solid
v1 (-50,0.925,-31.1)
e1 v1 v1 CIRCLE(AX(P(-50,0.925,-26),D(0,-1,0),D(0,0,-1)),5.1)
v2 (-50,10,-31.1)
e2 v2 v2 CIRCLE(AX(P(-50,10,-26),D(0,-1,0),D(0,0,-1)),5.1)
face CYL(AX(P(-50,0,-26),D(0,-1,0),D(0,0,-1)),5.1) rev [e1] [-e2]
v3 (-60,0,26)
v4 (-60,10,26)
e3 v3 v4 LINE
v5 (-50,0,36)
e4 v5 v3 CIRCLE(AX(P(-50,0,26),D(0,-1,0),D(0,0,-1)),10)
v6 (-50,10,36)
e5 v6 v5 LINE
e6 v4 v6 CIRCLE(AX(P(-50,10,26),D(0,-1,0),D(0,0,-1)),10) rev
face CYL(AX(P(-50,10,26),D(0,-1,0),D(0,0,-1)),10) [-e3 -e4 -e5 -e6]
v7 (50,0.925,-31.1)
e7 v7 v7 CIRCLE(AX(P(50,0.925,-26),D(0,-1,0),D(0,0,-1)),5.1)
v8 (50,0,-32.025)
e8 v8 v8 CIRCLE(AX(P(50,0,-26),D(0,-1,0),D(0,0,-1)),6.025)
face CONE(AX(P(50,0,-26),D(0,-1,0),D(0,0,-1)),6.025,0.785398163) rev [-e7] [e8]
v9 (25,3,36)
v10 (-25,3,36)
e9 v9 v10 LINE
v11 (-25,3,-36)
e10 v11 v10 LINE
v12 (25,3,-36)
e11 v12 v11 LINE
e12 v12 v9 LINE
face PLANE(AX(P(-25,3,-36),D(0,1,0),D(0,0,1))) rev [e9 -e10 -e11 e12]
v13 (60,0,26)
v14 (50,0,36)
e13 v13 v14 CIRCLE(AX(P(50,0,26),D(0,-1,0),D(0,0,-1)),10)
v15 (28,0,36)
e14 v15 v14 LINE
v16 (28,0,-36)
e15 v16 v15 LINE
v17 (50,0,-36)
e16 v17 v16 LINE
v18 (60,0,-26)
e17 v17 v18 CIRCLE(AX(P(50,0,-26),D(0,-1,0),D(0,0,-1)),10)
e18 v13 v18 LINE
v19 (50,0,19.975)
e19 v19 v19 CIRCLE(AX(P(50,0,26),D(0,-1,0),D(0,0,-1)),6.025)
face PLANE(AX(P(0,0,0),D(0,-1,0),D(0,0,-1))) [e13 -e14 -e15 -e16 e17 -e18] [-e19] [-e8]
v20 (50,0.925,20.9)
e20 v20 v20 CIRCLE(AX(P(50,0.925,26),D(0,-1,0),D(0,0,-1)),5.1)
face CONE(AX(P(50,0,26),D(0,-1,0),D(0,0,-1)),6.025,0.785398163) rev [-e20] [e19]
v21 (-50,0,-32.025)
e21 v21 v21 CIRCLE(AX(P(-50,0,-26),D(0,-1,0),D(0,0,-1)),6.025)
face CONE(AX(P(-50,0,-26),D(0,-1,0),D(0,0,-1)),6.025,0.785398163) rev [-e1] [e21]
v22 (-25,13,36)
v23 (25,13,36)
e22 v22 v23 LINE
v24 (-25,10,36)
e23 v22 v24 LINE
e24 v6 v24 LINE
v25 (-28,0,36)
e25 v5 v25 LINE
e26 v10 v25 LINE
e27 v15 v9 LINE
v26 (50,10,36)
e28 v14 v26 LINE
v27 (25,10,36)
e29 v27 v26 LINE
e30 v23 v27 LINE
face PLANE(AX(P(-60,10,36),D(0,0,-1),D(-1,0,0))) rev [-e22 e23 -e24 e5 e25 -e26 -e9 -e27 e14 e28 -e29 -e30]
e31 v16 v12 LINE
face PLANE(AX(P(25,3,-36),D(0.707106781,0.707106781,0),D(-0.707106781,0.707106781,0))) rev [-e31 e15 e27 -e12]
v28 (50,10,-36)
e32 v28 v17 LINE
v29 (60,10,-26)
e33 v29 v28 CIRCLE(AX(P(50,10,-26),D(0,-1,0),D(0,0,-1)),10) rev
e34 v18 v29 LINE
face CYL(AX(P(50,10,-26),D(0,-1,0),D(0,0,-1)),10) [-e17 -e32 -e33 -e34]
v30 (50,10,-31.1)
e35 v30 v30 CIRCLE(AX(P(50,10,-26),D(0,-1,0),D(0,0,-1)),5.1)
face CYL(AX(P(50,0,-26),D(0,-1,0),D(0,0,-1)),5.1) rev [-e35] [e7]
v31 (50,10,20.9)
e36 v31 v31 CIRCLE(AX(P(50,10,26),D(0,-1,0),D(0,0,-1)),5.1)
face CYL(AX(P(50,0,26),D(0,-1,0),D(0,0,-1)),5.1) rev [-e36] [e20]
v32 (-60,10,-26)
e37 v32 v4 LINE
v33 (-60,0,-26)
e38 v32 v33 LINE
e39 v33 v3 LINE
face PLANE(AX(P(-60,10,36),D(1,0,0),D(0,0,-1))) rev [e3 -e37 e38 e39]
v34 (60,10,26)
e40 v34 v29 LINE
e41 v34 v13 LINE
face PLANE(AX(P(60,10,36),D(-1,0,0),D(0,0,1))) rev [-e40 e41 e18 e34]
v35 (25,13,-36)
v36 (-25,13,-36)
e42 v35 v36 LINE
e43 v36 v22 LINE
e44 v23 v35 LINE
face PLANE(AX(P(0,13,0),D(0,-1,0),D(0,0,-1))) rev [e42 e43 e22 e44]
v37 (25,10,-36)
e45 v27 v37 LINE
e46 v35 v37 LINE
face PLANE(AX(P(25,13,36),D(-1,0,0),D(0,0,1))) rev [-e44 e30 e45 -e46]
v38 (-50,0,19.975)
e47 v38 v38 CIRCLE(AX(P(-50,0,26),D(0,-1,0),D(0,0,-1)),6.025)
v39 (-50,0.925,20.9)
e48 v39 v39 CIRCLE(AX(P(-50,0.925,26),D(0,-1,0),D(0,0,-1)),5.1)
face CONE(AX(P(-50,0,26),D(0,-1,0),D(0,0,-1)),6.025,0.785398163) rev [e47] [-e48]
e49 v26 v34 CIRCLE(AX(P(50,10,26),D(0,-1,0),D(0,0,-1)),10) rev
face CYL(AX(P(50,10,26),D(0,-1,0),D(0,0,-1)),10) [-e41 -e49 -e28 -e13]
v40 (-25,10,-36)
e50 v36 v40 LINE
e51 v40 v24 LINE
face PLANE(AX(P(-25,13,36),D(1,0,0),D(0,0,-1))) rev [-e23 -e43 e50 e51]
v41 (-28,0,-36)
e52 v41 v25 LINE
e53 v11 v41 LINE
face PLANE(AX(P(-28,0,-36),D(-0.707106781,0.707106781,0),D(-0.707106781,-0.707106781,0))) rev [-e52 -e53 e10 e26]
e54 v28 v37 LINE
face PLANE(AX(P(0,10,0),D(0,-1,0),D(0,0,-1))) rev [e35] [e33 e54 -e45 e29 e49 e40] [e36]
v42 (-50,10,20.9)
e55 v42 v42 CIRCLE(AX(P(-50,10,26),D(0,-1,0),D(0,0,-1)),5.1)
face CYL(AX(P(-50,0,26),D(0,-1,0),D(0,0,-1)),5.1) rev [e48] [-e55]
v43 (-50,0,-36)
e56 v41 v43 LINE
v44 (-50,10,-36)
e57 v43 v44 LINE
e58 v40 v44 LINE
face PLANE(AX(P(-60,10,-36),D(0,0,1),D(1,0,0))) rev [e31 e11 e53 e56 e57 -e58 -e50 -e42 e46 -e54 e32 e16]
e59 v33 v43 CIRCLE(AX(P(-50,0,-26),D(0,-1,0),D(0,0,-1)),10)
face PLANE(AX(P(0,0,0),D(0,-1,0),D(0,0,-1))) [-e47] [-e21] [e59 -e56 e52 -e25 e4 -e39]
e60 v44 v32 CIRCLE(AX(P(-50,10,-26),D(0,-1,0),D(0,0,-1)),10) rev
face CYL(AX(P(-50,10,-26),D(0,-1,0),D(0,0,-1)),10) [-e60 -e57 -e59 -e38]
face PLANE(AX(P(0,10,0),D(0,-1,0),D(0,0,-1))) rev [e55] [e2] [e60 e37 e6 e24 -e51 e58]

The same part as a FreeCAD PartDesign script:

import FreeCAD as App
import Part
import Sketcher


def edges_at(feature, points):
    """Names of the edges that pass closest to the given points."""
    edges = feature.Shape.Edges
    near = lambda p: min(range(len(edges)), key=lambda i: edges[i].distToShape(Part.Vertex(*p))[0])
    return sorted({f"Edge{near(p) + 1}" for p in points})

doc = App.newDocument("Part")
body = doc.addObject("PartDesign::Body", "Body")

# Sketch on XZ plane
sketch1 = body.newObject("Sketcher::SketchObject", "Sketch")
sketch1.AttachmentSupport = (doc.getObject("XZ_Plane"), [""])
sketch1.MapMode = "FlatFace"
sketch1.addGeometry(Part.LineSegment(App.Vector(-60, -36, 0), App.Vector(-60, 36, 0)), False)
sketch1.addGeometry(Part.LineSegment(App.Vector(-60, 36, 0), App.Vector(60, 36, 0)), False)
sketch1.addGeometry(Part.LineSegment(App.Vector(60, 36, 0), App.Vector(60, -36, 0)), False)
sketch1.addGeometry(Part.LineSegment(App.Vector(60, -36, 0), App.Vector(-60, -36, 0)), False)
sketch1.addConstraint(Sketcher.Constraint("Coincident", 0, 2, 1, 1))
sketch1.addConstraint(Sketcher.Constraint("Coincident", 1, 2, 2, 1))
sketch1.addConstraint(Sketcher.Constraint("Coincident", 2, 2, 3, 1))
sketch1.addConstraint(Sketcher.Constraint("Coincident", 3, 2, 0, 1))
sketch1.addConstraint(Sketcher.Constraint("Vertical", 0))
sketch1.addConstraint(Sketcher.Constraint("Horizontal", 1))
sketch1.addConstraint(Sketcher.Constraint("Vertical", 2))
sketch1.addConstraint(Sketcher.Constraint("Horizontal", 3))
sketch1.addConstraint(Sketcher.Constraint("Symmetric", 0, 2, 2, 2, -1, 1))
sketch1.addConstraint(Sketcher.Constraint("DistanceX", 1, 1, 1, 2, 120.0))
sketch1.addConstraint(Sketcher.Constraint("DistanceY", 0, 1, 0, 2, 72.0))
pad1 = body.newObject("PartDesign::Pad", "Pad")
pad1.Profile = sketch1
pad1.Length = 10
pad1.Reversed = True
doc.recompute()

fillet = body.newObject("PartDesign::Fillet", "Fillet")
fillet.Base = (pad1, edges_at(pad1, [
    (60, 5, 36),
    (-60, 5, 36),
    (-60, 5, -36),
    (60, 5, -36),
]))
fillet.Radius = 10

# Sketch on XZ plane
sketch2 = body.newObject("Sketcher::SketchObject", "Sketch001")
sketch2.AttachmentSupport = (doc.getObject("XZ_Plane"), [""])
sketch2.MapMode = "FlatFace"
sketch2.addGeometry(Part.Circle(App.Vector(-50, -26, 0), App.Vector(0, 0, 1), 5), False)
sketch2.addGeometry(Part.Circle(App.Vector(50, -26, 0), App.Vector(0, 0, 1), 5), False)
sketch2.addGeometry(Part.Circle(App.Vector(50, 26, 0), App.Vector(0, 0, 1), 5), False)
sketch2.addGeometry(Part.Circle(App.Vector(-50, 26, 0), App.Vector(0, 0, 1), 5), False)
sketch2.addConstraint(Sketcher.Constraint("Equal", 0, 1))
sketch2.addConstraint(Sketcher.Constraint("Equal", 1, 2))
sketch2.addConstraint(Sketcher.Constraint("Equal", 2, 3))
sketch2.addConstraint(Sketcher.Constraint("Symmetric", 0, 3, 2, 3, -1, 1))
sketch2.addConstraint(Sketcher.Constraint("Symmetric", 1, 3, 3, 3, -1, 1))
sketch2.addConstraint(Sketcher.Constraint("Symmetric", 0, 3, 1, 3, -2))
sketch2.addConstraint(Sketcher.Constraint("Diameter", 0, 10.2))
sketch2.addConstraint(Sketcher.Constraint("DistanceX", 0, 3, -1, 1, 50.0))
sketch2.addConstraint(Sketcher.Constraint("DistanceY", 0, 3, -1, 1, 26.0))
doc.recompute()
hole = body.newObject("PartDesign::Hole", "Hole")
hole.Profile = sketch2
hole.ThreadType = "None"
hole.Diameter = 10.2
hole.DepthType = "ThroughAll"
hole.HoleCutType = "Countersink"
hole.HoleCutDiameter = 12.05
hole.HoleCutCountersinkAngle = 90

# Sketch on XZ plane
sketch3 = body.newObject("Sketcher::SketchObject", "Sketch002")
sketch3.AttachmentSupport = (doc.getObject("XZ_Plane"), [""])
sketch3.MapMode = "FlatFace"
sketch3.AttachmentOffset = App.Placement(App.Vector(0, 0, -10), App.Rotation())
sketch3.addGeometry(Part.LineSegment(App.Vector(-25, -36, 0), App.Vector(-25, 36, 0)), False)
sketch3.addGeometry(Part.LineSegment(App.Vector(-25, 36, 0), App.Vector(25, 36, 0)), False)
sketch3.addGeometry(Part.LineSegment(App.Vector(25, 36, 0), App.Vector(25, -36, 0)), False)
sketch3.addGeometry(Part.LineSegment(App.Vector(25, -36, 0), App.Vector(-25, -36, 0)), False)
sketch3.addConstraint(Sketcher.Constraint("Coincident", 0, 2, 1, 1))
sketch3.addConstraint(Sketcher.Constraint("Coincident", 1, 2, 2, 1))
sketch3.addConstraint(Sketcher.Constraint("Coincident", 2, 2, 3, 1))
sketch3.addConstraint(Sketcher.Constraint("Coincident", 3, 2, 0, 1))
sketch3.addConstraint(Sketcher.Constraint("Vertical", 0))
sketch3.addConstraint(Sketcher.Constraint("Horizontal", 1))
sketch3.addConstraint(Sketcher.Constraint("Vertical", 2))
sketch3.addConstraint(Sketcher.Constraint("Horizontal", 3))
sketch3.addConstraint(Sketcher.Constraint("Symmetric", 0, 2, 2, 2, -1, 1))
sketch3.addConstraint(Sketcher.Constraint("DistanceX", 1, 1, 1, 2, 50.0))
sketch3.addConstraint(Sketcher.Constraint("DistanceY", 0, 1, 0, 2, 72.0))
pad2 = body.newObject("PartDesign::Pad", "Pad001")
pad2.Profile = sketch3
pad2.Length = 3
pad2.Reversed = True

# Sketch on XY plane
sketch4 = body.newObject("Sketcher::SketchObject", "Sketch003")
sketch4.AttachmentSupport = (doc.getObject("XY_Plane"), [""])
sketch4.MapMode = "FlatFace"
sketch4.addGeometry(Part.LineSegment(App.Vector(-25, 3, 0), App.Vector(-28, 0, 0)), False)
sketch4.addGeometry(Part.LineSegment(App.Vector(-28, 0, 0), App.Vector(28, 0, 0)), False)
sketch4.addGeometry(Part.LineSegment(App.Vector(28, 0, 0), App.Vector(25, 3, 0)), False)
sketch4.addGeometry(Part.LineSegment(App.Vector(25, 3, 0), App.Vector(-25, 3, 0)), False)
sketch4.addConstraint(Sketcher.Constraint("Coincident", 0, 2, 1, 1))
sketch4.addConstraint(Sketcher.Constraint("Coincident", 1, 2, 2, 1))
sketch4.addConstraint(Sketcher.Constraint("Coincident", 2, 2, 3, 1))
sketch4.addConstraint(Sketcher.Constraint("Coincident", 3, 2, 0, 1))
sketch4.addConstraint(Sketcher.Constraint("Horizontal", 1))
sketch4.addConstraint(Sketcher.Constraint("Horizontal", 3))
sketch4.addConstraint(Sketcher.Constraint("Symmetric", 0, 2, 1, 2, -1, 1))
sketch4.addConstraint(Sketcher.Constraint("Perpendicular", 0, 2))
sketch4.addConstraint(Sketcher.Constraint("Equal", 0, 2))
sketch4.addConstraint(Sketcher.Constraint("DistanceX", 1, 1, 1, 2, 56.0))
sketch4.addConstraint(Sketcher.Constraint("DistanceX", 3, 2, 3, 1, 50.0))
pocket1 = body.newObject("PartDesign::Pocket", "Pocket")
pocket1.Profile = sketch4
pocket1.Type = "ThroughAll"
pocket1.Midplane = True

doc.recompute()
